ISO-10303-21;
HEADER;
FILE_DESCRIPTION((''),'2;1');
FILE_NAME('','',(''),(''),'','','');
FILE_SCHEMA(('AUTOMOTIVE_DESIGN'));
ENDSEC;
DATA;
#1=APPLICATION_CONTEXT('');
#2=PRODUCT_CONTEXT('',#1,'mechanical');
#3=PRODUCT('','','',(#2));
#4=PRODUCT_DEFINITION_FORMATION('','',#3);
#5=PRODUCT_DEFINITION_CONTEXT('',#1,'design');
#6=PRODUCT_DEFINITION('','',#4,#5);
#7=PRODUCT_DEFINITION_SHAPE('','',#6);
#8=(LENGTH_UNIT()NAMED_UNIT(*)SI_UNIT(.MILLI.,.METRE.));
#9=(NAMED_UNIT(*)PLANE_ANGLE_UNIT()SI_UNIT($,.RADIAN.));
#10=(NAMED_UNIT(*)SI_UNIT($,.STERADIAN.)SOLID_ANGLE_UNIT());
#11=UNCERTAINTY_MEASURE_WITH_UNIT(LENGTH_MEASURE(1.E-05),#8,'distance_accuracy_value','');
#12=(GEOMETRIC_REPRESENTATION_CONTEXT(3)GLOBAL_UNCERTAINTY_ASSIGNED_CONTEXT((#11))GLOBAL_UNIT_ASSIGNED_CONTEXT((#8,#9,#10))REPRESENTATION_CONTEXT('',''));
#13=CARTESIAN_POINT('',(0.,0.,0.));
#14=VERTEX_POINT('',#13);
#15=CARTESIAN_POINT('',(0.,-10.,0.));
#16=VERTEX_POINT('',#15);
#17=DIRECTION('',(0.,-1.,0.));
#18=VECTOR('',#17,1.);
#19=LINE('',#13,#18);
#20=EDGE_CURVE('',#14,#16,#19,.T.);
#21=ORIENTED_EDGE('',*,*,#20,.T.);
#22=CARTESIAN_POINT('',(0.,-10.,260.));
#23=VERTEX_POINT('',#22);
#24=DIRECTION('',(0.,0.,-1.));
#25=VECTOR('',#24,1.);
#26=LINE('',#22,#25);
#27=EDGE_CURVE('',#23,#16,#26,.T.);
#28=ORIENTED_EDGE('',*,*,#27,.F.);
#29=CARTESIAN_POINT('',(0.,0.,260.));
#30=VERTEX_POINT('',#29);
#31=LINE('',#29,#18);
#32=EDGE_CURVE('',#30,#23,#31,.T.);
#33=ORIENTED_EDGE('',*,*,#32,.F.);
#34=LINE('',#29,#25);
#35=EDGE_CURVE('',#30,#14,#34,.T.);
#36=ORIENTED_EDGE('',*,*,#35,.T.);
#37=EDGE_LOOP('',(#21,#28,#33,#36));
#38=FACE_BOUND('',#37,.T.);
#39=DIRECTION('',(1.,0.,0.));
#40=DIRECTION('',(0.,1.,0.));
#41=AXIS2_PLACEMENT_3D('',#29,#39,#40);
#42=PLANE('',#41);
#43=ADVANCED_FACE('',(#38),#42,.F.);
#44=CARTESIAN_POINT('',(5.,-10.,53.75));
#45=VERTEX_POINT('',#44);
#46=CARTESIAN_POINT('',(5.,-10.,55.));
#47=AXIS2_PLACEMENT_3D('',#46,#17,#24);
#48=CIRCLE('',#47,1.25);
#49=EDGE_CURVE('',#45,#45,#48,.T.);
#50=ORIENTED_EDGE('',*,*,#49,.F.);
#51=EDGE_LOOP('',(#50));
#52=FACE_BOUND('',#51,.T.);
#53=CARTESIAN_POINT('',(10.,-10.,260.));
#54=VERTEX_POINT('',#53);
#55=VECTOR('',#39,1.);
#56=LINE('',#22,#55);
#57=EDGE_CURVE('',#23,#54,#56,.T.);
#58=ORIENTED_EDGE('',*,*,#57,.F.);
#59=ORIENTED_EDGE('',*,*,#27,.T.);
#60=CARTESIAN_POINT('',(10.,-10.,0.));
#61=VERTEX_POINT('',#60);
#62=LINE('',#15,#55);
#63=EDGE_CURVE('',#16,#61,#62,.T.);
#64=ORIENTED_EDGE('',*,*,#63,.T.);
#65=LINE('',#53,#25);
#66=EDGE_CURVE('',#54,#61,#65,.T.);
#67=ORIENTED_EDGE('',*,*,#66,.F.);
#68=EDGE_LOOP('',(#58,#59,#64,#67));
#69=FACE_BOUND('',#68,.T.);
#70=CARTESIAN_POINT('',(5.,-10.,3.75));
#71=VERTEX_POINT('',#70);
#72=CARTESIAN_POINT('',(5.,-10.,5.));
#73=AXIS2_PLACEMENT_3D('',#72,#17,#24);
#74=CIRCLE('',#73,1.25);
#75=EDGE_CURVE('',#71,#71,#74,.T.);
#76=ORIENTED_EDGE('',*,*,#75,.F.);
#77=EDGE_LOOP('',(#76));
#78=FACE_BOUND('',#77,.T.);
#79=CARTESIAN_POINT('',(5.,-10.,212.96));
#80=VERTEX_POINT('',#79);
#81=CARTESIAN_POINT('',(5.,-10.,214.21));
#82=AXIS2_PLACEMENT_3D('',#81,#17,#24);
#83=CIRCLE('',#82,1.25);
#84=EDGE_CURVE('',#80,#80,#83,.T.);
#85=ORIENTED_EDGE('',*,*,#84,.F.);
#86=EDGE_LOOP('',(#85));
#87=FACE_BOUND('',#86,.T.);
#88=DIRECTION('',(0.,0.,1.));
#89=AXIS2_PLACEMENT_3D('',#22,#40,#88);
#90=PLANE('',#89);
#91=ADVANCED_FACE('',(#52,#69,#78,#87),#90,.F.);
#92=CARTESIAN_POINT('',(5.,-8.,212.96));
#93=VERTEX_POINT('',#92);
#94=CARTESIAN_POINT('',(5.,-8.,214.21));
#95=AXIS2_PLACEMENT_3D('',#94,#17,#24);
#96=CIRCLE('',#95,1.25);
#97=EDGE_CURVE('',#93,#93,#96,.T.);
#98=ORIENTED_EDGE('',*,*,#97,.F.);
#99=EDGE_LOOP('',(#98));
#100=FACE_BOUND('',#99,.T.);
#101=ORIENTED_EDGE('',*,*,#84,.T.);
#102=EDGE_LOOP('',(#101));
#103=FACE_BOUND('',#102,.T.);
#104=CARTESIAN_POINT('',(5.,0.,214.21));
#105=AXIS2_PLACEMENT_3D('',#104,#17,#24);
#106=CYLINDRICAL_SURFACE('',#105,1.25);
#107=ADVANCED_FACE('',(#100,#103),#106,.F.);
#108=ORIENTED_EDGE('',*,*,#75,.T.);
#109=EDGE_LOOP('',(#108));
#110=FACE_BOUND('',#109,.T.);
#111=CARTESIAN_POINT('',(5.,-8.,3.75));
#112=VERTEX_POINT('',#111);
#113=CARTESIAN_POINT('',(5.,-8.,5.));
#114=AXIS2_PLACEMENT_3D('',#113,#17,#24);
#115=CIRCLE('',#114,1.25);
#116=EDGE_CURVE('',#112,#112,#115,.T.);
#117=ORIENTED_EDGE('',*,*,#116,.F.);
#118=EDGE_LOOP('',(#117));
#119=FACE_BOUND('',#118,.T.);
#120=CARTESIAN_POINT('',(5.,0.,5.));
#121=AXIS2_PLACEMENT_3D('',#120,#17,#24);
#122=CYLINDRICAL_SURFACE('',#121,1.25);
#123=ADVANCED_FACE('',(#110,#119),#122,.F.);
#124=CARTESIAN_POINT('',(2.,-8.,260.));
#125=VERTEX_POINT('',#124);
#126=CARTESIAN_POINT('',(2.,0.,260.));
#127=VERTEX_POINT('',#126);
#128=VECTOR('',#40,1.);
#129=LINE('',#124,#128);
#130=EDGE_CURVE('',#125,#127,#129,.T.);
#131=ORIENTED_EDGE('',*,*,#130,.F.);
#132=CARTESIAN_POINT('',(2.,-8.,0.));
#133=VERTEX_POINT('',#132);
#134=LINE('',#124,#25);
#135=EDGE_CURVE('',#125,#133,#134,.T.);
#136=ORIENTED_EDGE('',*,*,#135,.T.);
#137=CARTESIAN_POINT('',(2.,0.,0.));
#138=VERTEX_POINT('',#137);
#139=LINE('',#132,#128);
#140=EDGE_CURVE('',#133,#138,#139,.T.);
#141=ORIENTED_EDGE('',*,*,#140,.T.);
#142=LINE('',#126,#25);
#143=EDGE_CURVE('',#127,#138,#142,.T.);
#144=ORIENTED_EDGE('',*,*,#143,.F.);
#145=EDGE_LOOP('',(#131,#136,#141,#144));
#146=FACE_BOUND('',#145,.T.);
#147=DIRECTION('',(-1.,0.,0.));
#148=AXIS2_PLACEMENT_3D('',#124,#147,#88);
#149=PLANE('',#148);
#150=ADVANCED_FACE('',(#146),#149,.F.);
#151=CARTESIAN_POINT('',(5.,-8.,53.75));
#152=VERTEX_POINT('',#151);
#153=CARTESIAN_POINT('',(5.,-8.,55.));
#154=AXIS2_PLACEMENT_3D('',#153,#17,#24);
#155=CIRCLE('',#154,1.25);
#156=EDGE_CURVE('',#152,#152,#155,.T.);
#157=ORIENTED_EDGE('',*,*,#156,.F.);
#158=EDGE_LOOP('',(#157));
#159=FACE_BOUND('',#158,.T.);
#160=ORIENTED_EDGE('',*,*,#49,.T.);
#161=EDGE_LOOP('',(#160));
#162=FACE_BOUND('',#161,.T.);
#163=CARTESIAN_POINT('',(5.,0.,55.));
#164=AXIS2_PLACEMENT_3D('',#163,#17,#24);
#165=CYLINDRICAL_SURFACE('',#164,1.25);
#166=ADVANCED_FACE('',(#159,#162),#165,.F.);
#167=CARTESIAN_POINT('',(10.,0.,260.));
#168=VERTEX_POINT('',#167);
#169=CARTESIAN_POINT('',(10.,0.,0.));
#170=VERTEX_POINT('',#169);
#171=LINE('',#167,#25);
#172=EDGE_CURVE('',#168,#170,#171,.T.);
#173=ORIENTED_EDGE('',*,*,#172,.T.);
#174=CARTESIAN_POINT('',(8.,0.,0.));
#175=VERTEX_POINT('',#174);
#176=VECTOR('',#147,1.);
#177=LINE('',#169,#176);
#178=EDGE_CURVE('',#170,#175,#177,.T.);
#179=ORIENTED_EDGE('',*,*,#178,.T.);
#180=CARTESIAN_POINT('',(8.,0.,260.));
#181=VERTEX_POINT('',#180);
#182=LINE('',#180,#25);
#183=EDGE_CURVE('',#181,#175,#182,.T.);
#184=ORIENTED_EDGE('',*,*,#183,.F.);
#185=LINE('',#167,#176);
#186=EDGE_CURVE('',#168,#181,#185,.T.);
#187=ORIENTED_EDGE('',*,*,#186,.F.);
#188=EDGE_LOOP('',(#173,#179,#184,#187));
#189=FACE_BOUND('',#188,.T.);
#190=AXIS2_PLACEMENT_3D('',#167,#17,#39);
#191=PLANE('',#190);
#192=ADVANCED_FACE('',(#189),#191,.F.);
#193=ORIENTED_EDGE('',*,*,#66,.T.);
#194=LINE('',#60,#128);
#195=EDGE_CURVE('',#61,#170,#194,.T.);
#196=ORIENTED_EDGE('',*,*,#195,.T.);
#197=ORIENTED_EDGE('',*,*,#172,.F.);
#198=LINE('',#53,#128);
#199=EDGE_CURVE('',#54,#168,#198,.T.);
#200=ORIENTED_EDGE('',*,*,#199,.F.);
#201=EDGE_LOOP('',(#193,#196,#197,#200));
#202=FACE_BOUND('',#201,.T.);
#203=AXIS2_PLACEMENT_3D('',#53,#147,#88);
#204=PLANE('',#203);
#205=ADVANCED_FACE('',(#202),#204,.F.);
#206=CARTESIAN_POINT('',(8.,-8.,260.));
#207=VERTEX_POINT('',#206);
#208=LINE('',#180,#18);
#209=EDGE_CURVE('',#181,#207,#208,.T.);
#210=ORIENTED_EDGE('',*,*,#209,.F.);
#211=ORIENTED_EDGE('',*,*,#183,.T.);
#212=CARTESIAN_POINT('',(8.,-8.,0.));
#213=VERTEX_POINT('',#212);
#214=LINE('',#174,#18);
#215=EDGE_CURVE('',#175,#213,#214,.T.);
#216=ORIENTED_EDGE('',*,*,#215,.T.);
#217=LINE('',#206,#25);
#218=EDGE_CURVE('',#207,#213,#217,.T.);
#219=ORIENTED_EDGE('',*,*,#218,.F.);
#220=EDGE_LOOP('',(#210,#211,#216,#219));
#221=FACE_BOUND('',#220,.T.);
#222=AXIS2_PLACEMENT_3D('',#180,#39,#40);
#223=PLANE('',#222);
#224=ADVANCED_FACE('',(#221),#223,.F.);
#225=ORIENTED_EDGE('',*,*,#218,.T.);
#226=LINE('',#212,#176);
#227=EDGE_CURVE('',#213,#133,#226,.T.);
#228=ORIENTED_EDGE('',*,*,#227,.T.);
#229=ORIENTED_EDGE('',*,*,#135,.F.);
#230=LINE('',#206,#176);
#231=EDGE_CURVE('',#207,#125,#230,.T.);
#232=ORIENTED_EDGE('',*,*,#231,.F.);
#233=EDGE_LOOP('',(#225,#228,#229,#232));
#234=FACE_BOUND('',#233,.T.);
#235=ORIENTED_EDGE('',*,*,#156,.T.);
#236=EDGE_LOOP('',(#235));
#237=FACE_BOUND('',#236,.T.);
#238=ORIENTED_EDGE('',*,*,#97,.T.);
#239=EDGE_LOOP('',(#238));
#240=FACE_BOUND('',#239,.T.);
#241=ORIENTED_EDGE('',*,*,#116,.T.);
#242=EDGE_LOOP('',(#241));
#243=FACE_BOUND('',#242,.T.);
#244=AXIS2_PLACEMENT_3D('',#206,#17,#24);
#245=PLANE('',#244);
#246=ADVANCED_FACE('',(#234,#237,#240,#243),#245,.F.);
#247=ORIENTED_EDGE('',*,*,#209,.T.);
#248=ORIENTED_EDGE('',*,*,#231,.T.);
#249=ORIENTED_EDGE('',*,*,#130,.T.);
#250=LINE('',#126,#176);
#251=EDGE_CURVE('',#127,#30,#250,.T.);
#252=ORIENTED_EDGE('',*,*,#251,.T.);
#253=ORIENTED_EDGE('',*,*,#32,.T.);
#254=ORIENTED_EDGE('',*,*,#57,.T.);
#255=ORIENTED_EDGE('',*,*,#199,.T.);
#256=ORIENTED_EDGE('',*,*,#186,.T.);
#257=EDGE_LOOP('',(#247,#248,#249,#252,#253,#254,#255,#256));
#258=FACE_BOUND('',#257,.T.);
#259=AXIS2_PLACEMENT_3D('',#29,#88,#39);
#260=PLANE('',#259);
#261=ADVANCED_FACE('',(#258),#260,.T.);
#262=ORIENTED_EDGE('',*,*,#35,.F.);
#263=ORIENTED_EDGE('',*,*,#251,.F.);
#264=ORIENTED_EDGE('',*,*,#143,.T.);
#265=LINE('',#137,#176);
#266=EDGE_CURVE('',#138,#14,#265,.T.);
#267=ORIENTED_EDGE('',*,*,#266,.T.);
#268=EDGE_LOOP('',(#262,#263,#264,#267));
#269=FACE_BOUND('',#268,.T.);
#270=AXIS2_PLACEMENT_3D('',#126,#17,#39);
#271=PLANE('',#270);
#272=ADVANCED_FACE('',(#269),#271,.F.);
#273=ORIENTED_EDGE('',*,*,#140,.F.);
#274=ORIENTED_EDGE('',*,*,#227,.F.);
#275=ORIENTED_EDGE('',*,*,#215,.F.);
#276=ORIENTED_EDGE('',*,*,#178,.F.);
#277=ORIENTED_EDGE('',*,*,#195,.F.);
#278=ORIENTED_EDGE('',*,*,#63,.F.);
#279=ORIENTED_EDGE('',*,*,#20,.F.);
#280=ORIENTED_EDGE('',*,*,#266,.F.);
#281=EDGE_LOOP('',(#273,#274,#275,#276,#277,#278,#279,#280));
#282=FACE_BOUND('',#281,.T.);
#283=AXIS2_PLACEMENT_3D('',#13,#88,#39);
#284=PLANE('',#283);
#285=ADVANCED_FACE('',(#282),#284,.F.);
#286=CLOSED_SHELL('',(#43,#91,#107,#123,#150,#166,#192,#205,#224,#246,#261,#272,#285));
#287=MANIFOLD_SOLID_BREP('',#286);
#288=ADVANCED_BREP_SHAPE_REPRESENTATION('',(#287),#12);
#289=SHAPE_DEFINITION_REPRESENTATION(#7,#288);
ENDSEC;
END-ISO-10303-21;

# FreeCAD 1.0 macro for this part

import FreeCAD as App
import Part
import Sketcher

V = App.Vector
Q = App.Units.Quantity

doc = App.newDocument("Part")
body = doc.addObject("PartDesign::Body", "Body")

sketch1 = body.newObject("Sketcher::SketchObject", "Sketch")
sketch1.AttachmentSupport = (doc.getObject("XY_Plane"), [""])
sketch1.MapMode = "FlatFace"
sketch1.addGeometry([
    Part.LineSegment(V(0, 0, 0), V(0, -10, 0)),
    Part.LineSegment(V(0, -10, 0), V(10, -10, 0)),
    Part.LineSegment(V(10, -10, 0), V(10, 0, 0)),
    Part.LineSegment(V(10, 0, 0), V(8, 0, 0)),
    Part.LineSegment(V(8, 0, 0), V(8, -8, 0)),
    Part.LineSegment(V(8, -8, 0), V(2, -8, 0)),
    Part.LineSegment(V(2, -8, 0), V(2, 0, 0)),
    Part.LineSegment(V(2, 0, 0), V(0, 0, 0)),
], False)
sketch1.addConstraint([
    Sketcher.Constraint("Coincident", 0, 2, 1, 1),
    Sketcher.Constraint("Coincident", 1, 2, 2, 1),
    Sketcher.Constraint("Coincident", 2, 2, 3, 1),
    Sketcher.Constraint("Coincident", 3, 2, 4, 1),
    Sketcher.Constraint("Coincident", 4, 2, 5, 1),
    Sketcher.Constraint("Coincident", 5, 2, 6, 1),
    Sketcher.Constraint("Coincident", 6, 2, 7, 1),
    Sketcher.Constraint("Coincident", 7, 2, 0, 1),
    Sketcher.Constraint("Vertical", 0),
    Sketcher.Constraint("Horizontal", 1),
    Sketcher.Constraint("Vertical", 2),
    Sketcher.Constraint("Horizontal", 3),
    Sketcher.Constraint("Vertical", 4),
    Sketcher.Constraint("Horizontal", 5),
    Sketcher.Constraint("Vertical", 6),
    Sketcher.Constraint("Horizontal", 7),
    Sketcher.Constraint("Coincident", 7, 2, -1, 1),
    Sketcher.Constraint("PointOnObject", 2, 2, -1),
    Sketcher.Constraint("Equal", 3, 7),
    Sketcher.Constraint("Equal", 1, 0),
    Sketcher.Constraint("DistanceX", 1, 1, 1, 2, Q("10 mm")),
    Sketcher.Constraint("DistanceX", 3, 2, 3, 1, Q("2 mm")),
    Sketcher.Constraint("DistanceY", 4, 2, 4, 1, Q("8 mm")),
])
pad1 = body.newObject("PartDesign::Pad", "Pad")
pad1.Profile = sketch1
pad1.Length = 260

sketch2 = body.newObject("Sketcher::SketchObject", "Sketch001")
sketch2.AttachmentSupport = (doc.getObject("XZ_Plane"), [""])
sketch2.MapMode = "FlatFace"
sketch2.AttachmentOffset = App.Placement(V(0, 0, 10), App.Rotation())
sketch2.addGeometry(Part.Circle(V(5, 214.2, 0), V(0, 0, 1), 1.2), False)
sketch2.addConstraint([
    Sketcher.Constraint("Diameter", 0, Q("2.5 mm")),
    Sketcher.Constraint("DistanceX", -1, 1, 0, 3, Q("5 mm")),
    Sketcher.Constraint("DistanceY", -1, 1, 0, 3, Q("214.21 mm")),
])
pocket1 = body.newObject("PartDesign::Pocket", "Pocket")
pocket1.Profile = sketch2
pocket1.Length = 10

sketch3 = body.newObject("Sketcher::SketchObject", "Sketch002")
sketch3.AttachmentSupport = (doc.getObject("XZ_Plane"), [""])
sketch3.MapMode = "FlatFace"
sketch3.AttachmentOffset = App.Placement(V(0, 0, 10), App.Rotation())
sketch3.addGeometry([
    Part.Circle(V(5, 5, 0), V(0, 0, 1), 1.2),
    Part.Circle(V(5, 55, 0), V(0, 0, 1), 1.2),
], False)
sketch3.addConstraint([
    Sketcher.Constraint("Equal", 0, 1),
    Sketcher.Constraint("Vertical", 0, 3, 1, 3),
    Sketcher.Constraint("Diameter", 0, Q("2.5 mm")),
    Sketcher.Constraint("DistanceX", -1, 1, 0, 3, Q("5 mm")),
    Sketcher.Constraint("DistanceY", -1, 1, 0, 3, Q("5 mm")),
    Sketcher.Constraint("DistanceY", -1, 1, 1, 3, Q("55 mm")),
])
pocket2 = body.newObject("PartDesign::Pocket", "Pocket001")
pocket2.Profile = sketch3
pocket2.Length = 10

doc.recompute()
